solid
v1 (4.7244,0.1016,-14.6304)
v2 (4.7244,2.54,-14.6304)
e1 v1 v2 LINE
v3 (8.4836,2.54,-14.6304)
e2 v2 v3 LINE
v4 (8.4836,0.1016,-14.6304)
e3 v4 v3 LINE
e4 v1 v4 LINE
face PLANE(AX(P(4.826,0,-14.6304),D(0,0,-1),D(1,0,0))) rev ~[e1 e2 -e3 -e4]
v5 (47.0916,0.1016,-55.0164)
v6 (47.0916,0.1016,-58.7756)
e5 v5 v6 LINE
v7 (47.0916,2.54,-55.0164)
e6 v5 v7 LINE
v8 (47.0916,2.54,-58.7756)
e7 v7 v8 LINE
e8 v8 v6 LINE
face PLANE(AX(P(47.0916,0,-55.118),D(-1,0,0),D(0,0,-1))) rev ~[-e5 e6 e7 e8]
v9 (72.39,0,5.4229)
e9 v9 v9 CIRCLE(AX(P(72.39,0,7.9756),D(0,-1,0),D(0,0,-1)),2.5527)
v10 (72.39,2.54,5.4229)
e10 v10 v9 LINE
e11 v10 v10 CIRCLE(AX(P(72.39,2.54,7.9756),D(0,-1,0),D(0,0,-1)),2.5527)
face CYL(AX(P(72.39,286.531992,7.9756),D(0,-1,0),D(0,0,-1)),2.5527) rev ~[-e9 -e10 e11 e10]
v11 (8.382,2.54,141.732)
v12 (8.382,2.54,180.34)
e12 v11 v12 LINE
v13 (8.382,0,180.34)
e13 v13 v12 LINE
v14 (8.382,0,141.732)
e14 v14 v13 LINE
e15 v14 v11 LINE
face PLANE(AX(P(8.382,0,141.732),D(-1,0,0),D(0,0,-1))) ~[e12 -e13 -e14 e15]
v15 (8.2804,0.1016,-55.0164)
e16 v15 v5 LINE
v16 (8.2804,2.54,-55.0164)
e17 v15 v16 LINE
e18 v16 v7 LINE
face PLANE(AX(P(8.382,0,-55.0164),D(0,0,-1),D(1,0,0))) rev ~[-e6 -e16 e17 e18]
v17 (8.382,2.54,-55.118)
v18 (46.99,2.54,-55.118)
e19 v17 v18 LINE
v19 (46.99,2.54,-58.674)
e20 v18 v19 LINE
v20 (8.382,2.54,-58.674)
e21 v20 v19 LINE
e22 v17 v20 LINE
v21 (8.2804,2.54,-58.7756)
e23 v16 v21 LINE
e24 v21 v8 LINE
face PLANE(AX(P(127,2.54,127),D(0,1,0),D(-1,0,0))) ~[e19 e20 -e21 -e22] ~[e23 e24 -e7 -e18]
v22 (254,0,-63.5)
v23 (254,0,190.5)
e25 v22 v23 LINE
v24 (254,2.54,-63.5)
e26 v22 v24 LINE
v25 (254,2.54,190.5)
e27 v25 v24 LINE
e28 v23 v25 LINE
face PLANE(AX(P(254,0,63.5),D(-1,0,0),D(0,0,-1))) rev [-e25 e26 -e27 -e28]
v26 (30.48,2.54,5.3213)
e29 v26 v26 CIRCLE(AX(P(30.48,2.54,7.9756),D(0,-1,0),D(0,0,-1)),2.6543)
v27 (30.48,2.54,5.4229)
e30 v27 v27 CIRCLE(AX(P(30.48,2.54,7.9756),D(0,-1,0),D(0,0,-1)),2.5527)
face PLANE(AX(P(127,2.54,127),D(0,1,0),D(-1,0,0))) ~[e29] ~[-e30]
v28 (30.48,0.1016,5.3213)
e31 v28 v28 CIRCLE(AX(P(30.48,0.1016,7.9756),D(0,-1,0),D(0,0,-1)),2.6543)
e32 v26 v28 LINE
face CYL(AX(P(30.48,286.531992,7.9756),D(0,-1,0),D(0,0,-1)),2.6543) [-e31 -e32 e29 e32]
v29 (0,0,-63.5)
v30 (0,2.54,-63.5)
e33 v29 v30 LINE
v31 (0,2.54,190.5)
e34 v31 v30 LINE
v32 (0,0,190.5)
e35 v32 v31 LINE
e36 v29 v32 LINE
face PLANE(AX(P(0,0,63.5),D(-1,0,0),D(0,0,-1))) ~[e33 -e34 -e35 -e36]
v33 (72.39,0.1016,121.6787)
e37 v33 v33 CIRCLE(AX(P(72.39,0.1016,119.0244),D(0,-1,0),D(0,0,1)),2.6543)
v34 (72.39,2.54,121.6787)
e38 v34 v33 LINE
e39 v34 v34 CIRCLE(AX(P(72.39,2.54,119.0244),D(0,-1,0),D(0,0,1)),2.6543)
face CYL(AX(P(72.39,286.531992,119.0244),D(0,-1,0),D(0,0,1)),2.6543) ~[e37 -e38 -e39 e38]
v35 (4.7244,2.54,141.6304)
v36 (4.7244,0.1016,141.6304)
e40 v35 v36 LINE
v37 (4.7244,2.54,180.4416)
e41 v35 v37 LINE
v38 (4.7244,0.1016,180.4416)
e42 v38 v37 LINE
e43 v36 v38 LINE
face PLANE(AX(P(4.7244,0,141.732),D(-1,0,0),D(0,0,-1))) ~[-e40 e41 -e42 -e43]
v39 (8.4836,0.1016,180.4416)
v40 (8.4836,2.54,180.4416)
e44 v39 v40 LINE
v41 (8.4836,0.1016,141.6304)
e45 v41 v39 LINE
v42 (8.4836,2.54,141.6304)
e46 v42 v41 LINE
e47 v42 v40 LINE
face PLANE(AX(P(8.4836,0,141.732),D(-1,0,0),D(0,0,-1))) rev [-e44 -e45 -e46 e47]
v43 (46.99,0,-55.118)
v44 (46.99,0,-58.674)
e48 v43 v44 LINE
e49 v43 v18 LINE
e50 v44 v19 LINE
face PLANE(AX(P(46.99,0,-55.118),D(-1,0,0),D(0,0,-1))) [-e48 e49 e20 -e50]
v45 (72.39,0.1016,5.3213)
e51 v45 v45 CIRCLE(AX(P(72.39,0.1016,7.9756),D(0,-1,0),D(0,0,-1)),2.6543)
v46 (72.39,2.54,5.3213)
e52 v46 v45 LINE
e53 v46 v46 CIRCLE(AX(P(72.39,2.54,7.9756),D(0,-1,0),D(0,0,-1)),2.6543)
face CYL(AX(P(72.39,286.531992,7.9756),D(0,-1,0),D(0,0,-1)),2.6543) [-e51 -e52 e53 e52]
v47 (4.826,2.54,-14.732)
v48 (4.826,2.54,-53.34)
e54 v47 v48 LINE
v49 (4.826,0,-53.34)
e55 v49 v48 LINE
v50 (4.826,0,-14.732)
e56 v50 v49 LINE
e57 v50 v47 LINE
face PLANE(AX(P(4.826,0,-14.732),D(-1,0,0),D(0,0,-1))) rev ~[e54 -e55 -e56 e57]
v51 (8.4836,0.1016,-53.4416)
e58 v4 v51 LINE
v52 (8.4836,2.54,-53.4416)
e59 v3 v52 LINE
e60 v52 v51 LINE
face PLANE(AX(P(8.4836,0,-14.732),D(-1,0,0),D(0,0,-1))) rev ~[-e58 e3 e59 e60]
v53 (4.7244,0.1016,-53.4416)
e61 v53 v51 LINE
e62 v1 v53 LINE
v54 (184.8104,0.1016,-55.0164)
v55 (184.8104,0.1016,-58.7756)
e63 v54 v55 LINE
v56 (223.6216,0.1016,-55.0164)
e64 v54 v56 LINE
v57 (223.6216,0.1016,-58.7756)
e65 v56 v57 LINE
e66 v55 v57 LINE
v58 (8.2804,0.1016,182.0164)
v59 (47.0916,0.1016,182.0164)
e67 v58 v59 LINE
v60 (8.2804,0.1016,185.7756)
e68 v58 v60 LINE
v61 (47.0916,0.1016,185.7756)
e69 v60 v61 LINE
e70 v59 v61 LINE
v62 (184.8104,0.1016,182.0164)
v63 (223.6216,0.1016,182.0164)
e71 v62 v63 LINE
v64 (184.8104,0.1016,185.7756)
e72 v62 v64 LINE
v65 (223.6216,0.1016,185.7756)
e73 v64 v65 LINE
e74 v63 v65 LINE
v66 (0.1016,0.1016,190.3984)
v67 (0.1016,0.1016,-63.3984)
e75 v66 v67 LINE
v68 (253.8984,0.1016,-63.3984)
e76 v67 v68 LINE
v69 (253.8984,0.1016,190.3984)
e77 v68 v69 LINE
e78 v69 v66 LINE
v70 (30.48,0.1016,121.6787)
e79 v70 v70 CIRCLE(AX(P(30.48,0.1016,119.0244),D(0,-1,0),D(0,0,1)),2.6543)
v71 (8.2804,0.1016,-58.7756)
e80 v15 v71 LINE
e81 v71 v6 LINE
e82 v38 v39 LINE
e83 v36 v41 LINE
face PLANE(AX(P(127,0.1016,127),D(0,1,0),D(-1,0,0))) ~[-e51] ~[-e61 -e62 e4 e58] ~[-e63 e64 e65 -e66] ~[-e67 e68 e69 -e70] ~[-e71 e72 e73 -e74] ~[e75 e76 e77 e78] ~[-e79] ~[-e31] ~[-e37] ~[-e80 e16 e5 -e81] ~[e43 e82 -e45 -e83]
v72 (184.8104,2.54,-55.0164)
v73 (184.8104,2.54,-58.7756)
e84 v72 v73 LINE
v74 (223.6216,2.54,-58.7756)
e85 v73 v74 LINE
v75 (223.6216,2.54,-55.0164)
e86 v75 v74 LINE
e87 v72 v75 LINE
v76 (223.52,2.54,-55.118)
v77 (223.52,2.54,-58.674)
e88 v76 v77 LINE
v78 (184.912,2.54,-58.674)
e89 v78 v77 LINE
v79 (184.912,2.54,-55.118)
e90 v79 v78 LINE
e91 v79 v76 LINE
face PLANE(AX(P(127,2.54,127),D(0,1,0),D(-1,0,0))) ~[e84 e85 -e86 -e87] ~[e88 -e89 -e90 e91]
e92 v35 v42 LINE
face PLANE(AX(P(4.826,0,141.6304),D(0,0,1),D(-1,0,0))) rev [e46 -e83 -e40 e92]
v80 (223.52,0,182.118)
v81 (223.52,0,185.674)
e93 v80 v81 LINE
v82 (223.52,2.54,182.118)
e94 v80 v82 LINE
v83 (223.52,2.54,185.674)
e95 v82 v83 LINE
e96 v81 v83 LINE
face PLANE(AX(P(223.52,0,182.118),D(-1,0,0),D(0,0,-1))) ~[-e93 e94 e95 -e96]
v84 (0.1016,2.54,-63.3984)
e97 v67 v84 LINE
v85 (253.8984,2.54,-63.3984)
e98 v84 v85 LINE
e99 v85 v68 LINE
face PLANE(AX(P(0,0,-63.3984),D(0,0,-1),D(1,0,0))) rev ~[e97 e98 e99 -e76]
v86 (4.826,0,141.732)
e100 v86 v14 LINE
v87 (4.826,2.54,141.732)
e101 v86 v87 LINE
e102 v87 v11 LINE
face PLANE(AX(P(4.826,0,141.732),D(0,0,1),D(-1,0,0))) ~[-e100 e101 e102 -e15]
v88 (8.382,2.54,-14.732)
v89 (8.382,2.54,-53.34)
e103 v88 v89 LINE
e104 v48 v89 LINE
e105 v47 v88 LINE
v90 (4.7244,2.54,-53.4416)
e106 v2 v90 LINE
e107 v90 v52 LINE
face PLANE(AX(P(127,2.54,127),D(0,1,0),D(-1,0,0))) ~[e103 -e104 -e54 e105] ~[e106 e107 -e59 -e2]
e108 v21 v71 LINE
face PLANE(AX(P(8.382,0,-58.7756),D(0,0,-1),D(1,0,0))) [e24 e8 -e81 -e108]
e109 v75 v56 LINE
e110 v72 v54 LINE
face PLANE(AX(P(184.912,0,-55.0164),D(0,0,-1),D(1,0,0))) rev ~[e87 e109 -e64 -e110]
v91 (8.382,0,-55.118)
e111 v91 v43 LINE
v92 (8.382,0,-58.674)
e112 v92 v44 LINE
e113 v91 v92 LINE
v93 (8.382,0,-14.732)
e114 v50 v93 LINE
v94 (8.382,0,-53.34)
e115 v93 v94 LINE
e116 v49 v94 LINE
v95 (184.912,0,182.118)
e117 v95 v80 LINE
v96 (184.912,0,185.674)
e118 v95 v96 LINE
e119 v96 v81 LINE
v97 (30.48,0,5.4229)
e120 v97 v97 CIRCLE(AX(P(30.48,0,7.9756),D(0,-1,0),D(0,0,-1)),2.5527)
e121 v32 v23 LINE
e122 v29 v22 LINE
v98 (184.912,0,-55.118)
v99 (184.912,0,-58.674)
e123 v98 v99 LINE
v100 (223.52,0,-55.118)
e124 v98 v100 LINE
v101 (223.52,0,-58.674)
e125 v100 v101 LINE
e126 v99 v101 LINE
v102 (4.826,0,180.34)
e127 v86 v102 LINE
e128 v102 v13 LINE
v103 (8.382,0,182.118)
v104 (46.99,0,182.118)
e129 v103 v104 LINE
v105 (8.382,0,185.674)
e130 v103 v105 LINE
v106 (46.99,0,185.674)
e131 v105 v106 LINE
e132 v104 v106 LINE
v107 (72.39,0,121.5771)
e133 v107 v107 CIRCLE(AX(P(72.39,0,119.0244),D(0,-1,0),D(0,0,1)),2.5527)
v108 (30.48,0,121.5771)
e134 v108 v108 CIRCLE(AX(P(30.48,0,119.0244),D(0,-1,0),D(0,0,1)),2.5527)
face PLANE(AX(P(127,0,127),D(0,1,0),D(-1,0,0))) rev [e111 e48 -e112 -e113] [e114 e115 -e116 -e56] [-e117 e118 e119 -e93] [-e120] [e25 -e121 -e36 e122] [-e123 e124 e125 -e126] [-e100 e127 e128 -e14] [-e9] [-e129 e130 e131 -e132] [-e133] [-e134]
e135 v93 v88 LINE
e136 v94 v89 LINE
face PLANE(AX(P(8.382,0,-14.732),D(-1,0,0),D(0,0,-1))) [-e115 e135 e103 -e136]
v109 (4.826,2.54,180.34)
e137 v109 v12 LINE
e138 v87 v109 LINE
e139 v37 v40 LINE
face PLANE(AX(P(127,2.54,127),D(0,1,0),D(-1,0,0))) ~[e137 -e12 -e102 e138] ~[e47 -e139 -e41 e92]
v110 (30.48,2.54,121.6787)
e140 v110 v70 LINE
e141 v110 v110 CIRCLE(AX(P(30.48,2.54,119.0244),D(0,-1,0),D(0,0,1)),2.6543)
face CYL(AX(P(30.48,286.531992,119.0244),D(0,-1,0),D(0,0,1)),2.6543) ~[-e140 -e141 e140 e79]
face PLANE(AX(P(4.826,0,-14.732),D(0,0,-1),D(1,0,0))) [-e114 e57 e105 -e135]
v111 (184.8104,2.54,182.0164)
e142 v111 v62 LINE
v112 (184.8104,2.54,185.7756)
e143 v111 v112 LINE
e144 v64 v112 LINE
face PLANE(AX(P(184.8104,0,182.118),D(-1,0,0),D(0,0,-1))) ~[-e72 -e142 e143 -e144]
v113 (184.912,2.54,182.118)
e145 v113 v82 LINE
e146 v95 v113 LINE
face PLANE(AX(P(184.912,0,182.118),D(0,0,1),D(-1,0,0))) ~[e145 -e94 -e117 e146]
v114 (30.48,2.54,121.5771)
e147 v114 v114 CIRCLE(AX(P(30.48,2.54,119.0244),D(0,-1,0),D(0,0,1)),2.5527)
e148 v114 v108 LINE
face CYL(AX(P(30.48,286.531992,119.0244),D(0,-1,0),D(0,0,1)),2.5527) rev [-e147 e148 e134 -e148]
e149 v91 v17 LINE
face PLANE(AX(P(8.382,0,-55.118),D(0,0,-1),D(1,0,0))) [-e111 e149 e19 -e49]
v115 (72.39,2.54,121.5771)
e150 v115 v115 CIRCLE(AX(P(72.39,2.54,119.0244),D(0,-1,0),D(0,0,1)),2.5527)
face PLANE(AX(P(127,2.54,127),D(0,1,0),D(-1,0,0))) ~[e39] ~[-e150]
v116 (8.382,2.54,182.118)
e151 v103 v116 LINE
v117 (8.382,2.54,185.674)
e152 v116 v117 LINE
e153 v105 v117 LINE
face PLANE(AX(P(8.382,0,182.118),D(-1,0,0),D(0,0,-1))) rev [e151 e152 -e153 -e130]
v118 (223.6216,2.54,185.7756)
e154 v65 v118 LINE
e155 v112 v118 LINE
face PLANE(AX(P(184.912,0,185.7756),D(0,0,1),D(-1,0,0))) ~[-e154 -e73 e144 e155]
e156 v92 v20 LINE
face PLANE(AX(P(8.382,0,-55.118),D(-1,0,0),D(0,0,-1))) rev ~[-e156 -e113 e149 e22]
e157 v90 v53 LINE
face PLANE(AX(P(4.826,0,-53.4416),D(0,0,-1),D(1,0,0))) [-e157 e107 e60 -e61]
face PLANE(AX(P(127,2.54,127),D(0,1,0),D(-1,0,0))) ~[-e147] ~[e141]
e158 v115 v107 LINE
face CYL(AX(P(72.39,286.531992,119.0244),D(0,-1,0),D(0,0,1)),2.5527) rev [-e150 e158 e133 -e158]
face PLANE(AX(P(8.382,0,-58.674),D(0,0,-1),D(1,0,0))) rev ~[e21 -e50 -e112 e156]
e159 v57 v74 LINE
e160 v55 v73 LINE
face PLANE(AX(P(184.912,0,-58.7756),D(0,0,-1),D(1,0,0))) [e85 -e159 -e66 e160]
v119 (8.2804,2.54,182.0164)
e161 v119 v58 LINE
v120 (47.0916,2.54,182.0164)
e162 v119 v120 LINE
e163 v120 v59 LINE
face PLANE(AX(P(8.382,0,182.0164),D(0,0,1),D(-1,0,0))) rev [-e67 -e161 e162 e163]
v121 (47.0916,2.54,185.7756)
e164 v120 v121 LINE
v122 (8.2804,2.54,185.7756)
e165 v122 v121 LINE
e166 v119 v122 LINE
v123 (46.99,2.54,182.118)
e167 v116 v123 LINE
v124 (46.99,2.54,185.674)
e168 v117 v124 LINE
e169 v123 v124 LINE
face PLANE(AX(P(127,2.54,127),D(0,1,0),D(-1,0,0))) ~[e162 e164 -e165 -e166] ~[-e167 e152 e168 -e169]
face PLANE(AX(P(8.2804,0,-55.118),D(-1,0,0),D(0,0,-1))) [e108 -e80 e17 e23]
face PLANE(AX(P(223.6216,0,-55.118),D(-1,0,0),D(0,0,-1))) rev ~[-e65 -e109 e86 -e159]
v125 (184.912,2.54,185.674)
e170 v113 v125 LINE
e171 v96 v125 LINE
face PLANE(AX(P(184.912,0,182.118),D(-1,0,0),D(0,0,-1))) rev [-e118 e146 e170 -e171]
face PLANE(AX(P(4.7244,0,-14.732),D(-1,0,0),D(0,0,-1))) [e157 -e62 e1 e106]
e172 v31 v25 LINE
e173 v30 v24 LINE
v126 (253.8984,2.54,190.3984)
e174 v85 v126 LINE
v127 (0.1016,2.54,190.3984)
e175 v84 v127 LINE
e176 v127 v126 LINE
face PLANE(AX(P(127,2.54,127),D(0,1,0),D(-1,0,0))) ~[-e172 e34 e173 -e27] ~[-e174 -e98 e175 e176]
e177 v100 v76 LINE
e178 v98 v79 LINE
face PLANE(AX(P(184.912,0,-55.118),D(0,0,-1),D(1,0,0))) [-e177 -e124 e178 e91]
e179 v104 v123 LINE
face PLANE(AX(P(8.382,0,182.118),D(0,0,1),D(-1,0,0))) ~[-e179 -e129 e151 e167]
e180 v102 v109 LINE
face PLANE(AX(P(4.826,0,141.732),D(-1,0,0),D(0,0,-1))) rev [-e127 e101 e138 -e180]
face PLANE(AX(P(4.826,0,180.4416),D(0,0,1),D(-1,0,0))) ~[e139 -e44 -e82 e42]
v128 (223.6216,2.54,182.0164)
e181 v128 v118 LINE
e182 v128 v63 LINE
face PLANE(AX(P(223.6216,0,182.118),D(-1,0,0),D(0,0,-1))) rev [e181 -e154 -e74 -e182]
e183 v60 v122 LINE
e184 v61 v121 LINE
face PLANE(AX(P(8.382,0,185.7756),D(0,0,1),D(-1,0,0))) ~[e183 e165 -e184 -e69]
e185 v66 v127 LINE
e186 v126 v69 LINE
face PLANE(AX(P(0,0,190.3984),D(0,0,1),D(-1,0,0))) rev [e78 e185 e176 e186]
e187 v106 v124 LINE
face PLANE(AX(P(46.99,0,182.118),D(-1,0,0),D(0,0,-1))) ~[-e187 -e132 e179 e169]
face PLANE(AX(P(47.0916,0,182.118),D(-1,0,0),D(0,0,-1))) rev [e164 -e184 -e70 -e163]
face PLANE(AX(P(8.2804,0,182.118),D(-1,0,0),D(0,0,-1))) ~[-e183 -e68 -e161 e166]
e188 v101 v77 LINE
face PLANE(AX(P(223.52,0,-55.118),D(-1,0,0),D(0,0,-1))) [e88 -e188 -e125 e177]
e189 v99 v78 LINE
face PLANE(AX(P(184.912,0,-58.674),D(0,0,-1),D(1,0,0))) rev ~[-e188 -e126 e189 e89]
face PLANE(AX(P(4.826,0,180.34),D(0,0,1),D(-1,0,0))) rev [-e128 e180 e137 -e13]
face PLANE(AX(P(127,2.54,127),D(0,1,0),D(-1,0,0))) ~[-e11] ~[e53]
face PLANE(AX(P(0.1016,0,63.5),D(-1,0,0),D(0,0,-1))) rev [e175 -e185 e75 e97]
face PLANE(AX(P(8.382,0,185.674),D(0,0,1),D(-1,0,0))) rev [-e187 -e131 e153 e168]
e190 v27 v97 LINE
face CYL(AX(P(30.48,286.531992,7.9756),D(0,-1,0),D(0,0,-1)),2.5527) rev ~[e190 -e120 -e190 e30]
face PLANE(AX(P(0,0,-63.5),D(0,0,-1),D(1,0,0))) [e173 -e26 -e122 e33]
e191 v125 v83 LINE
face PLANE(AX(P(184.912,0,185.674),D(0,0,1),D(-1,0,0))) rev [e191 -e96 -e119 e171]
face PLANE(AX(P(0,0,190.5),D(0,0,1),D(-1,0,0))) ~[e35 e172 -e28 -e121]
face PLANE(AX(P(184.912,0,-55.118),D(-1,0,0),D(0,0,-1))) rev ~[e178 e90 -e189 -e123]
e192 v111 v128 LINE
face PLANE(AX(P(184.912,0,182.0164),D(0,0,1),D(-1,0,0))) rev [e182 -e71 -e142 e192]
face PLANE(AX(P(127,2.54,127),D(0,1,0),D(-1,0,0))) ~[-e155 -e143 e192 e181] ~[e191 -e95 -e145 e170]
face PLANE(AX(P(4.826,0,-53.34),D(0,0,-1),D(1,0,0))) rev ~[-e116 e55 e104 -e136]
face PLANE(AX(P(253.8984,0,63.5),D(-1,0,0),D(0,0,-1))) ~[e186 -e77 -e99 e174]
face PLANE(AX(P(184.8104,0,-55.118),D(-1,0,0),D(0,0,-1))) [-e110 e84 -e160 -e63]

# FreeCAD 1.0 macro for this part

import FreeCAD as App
import Part
import Sketcher

V = App.Vector
Q = App.Units.Quantity


def faces_at(feature, points):
    """Names of the faces that lie closest to the given points."""
    faces = feature.Shape.Faces
    near = lambda p: min(range(len(faces)), key=lambda i: faces[i].distToShape(Part.Vertex(*p))[0])
    return sorted({f"Face{near(p) + 1}" for p in points})

doc = App.newDocument("Part")
body = doc.addObject("PartDesign::Body", "Body")

# Sketch on XZ plane
sketch1 = body.newObject("Sketcher::SketchObject", "Sketch")
sketch1.AttachmentSupport = (doc.getObject("XZ_Plane"), [""])
sketch1.MapMode = "FlatFace"
sketch1.addGeometry(Part.LineSegment(V(0, -63.5, 0), V(0, 63.5, 0)), False)
sketch1.addGeometry(Part.LineSegment(V(0, 63.5, 0), V(254, 63.5, 0)), False)
sketch1.addGeometry(Part.LineSegment(V(254, 63.5, 0), V(254, -63.5, 0)), False)
sketch1.addGeometry(Part.LineSegment(V(254, -63.5, 0), V(0, -63.5, 0)), False)
sketch1.addGeometry(Part.LineSegment(V(8.382, -14.732, 0), V(4.826, -14.732, 0)), False)
sketch1.addGeometry(Part.LineSegment(V(4.826, -14.732, 0), V(4.826, -53.34, 0)), False)
sketch1.addGeometry(Part.LineSegment(V(4.826, -53.34, 0), V(8.382, -53.34, 0)), False)
sketch1.addGeometry(Part.LineSegment(V(8.382, -53.34, 0), V(8.382, -14.732, 0)), False)
sketch1.addGeometry(Part.LineSegment(V(46.99, -55.118, 0), V(8.382, -55.118, 0)), False)
sketch1.addGeometry(Part.LineSegment(V(8.382, -55.118, 0), V(8.382, -58.674, 0)), False)
sketch1.addGeometry(Part.LineSegment(V(8.382, -58.674, 0), V(46.99, -58.674, 0)), False)
sketch1.addGeometry(Part.LineSegment(V(46.99, -58.674, 0), V(46.99, -55.118, 0)), False)
sketch1.addGeometry(Part.LineSegment(V(223.52, -55.118, 0), V(184.912, -55.118, 0)), False)
sketch1.addGeometry(Part.LineSegment(V(184.912, -55.118, 0), V(184.912, -58.674, 0)), False)
sketch1.addGeometry(Part.LineSegment(V(184.912, -58.674, 0), V(223.52, -58.674, 0)), False)
sketch1.addGeometry(Part.LineSegment(V(223.52, -58.674, 0), V(223.52, -55.118, 0)), False)
sketch1.addConstraint(Sketcher.Constraint("Coincident", 0, 2, 1, 1))
sketch1.addConstraint(Sketcher.Constraint("Coincident", 1, 2, 2, 1))
sketch1.addConstraint(Sketcher.Constraint("Coincident", 2, 2, 3, 1))
sketch1.addConstraint(Sketcher.Constraint("Coincident", 3, 2, 0, 1))
sketch1.addConstraint(Sketcher.Constraint("Coincident", 4, 2, 5, 1))
sketch1.addConstraint(Sketcher.Constraint("Coincident", 5, 2, 6, 1))
sketch1.addConstraint(Sketcher.Constraint("Coincident", 6, 2, 7, 1))
sketch1.addConstraint(Sketcher.Constraint("Coincident", 7, 2, 4, 1))
sketch1.addConstraint(Sketcher.Constraint("Coincident", 8, 2, 9, 1))
sketch1.addConstraint(Sketcher.Constraint("Coincident", 9, 2, 10, 1))
sketch1.addConstraint(Sketcher.Constraint("Coincident", 10, 2, 11, 1))
sketch1.addConstraint(Sketcher.Constraint("Coincident", 11, 2, 8, 1))
sketch1.addConstraint(Sketcher.Constraint("Coincident", 12, 2, 13, 1))
sketch1.addConstraint(Sketcher.Constraint("Coincident", 13, 2, 14, 1))
sketch1.addConstraint(Sketcher.Constraint("Coincident", 14, 2, 15, 1))
sketch1.addConstraint(Sketcher.Constraint("Coincident", 15, 2, 12, 1))
sketch1.addConstraint(Sketcher.Constraint("Vertical", 0))
sketch1.addConstraint(Sketcher.Constraint("Horizontal", 1))
sketch1.addConstraint(Sketcher.Constraint("Vertical", 2))
sketch1.addConstraint(Sketcher.Constraint("Horizontal", 3))
sketch1.addConstraint(Sketcher.Constraint("Horizontal", 4))
sketch1.addConstraint(Sketcher.Constraint("Vertical", 5))
sketch1.addConstraint(Sketcher.Constraint("Horizontal", 6))
sketch1.addConstraint(Sketcher.Constraint("Vertical", 7))
sketch1.addConstraint(Sketcher.Constraint("Horizontal", 8))
sketch1.addConstraint(Sketcher.Constraint("Vertical", 9))
sketch1.addConstraint(Sketcher.Constraint("Horizontal", 10))
sketch1.addConstraint(Sketcher.Constraint("Vertical", 11))
sketch1.addConstraint(Sketcher.Constraint("Horizontal", 12))
sketch1.addConstraint(Sketcher.Constraint("Vertical", 13))
sketch1.addConstraint(Sketcher.Constraint("Horizontal", 14))
sketch1.addConstraint(Sketcher.Constraint("Vertical", 15))
sketch1.addConstraint(Sketcher.Constraint("Symmetric", 0, 2, 3, 2, -1, 1))
sketch1.addConstraint(Sketcher.Constraint("Horizontal", 11, 2, 12, 2))
sketch1.addConstraint(Sketcher.Constraint("Horizontal", 10, 2, 13, 2))
sketch1.addConstraint(Sketcher.Constraint("Vertical", 7, 2, 8, 2))
sketch1.addConstraint(Sketcher.Constraint("Equal", 10, 12))
sketch1.addConstraint(Sketcher.Constraint("Equal", 14, 5))
sketch1.addConstraint(Sketcher.Constraint("Equal", 6, 9))
sketch1.addConstraint(Sketcher.Constraint("DistanceX", 1, 1, 1, 2, Q("10 in")))
sketch1.addConstraint(Sketcher.Constraint("DistanceY", 0, 1, 0, 2, Q("5 in")))
sketch1.addConstraint(Sketcher.Constraint("DistanceX", 4, 2, 4, 1, Q("0.14 in")))
sketch1.addConstraint(Sketcher.Constraint("DistanceX", 8, 2, 8, 1, Q("1.52 in")))
sketch1.addConstraint(Sketcher.Constraint("DistanceY", 5, 2, -1, 1, Q("2.1 in")))
sketch1.addConstraint(Sketcher.Constraint("DistanceX", -1, 1, 14, 2, Q("8.8 in")))
sketch1.addConstraint(Sketcher.Constraint("DistanceX", -1, 1, 4, 2, Q("0.19 in")))
sketch1.addConstraint(Sketcher.Constraint("DistanceY", 8, 2, -1, 1, Q("2.17 in")))
pad1 = body.newObject("PartDesign::Pad", "Pad")
pad1.Profile = sketch1
pad1.Length = Q("0.1 in")
pad1.Reversed = True

# Sketch on XZ plane
sketch2 = body.newObject("Sketcher::SketchObject", "Sketch001")
sketch2.AttachmentSupport = (doc.getObject("XZ_Plane"), [""])
sketch2.MapMode = "FlatFace"
sketch2.AttachmentOffset = App.Placement(V(0, 0, -0.1 * 25.4), App.Rotation())
sketch2.addGeometry(Part.Circle(V(30.48, 7.9756, 0), V(0, 0, 1), 2.5527), False)
sketch2.addGeometry(Part.Circle(V(72.39, 7.9756, 0), V(0, 0, 1), 2.5527), False)
sketch2.addConstraint(Sketcher.Constraint("Equal", 0, 1))
sketch2.addConstraint(Sketcher.Constraint("Horizontal", 0, 3, 1, 3))
sketch2.addConstraint(Sketcher.Constraint("Diameter", 0, Q("0.201 in")))
sketch2.addConstraint(Sketcher.Constraint("DistanceX", -1, 1, 0, 3, Q("1.2 in")))
sketch2.addConstraint(Sketcher.Constraint("DistanceX", -1, 1, 1, 3, Q("2.85 in")))
sketch2.addConstraint(Sketcher.Constraint("DistanceY", -1, 1, 0, 3, Q("0.314 in")))
doc.recompute()
hole = body.newObject("PartDesign::Hole", "Hole")
hole.Profile = sketch2
hole.ThreadType = "None"
hole.Diameter = Q("0.201 in")
hole.DepthType = "ThroughAll"
hole.Reversed = True
doc.recompute()

datumplane = body.newObject("PartDesign::Plane", "DatumPlane")
datumplane.AttachmentSupport = (doc.getObject("XY_Plane"), [""])
datumplane.MapMode = "FlatFace"
datumplane.AttachmentOffset = App.Placement(V(0, 0, 2.5 * 25.4), App.Rotation())
mirrored = body.newObject("PartDesign::Mirrored", "Mirrored")
mirrored.Originals = [pad1, hole]
mirrored.MirrorPlane = (datumplane, [""])
body.Tip = mirrored
doc.recompute()

thickness = body.newObject("PartDesign::Thickness", "Thickness")
thickness.Base = (mirrored, faces_at(mirrored, [(127, 2.54, 63.5)]))
thickness.Value = Q("0.004 in")
thickness.Reversed = True
thickness.Join = "Intersection"

doc.recompute()
